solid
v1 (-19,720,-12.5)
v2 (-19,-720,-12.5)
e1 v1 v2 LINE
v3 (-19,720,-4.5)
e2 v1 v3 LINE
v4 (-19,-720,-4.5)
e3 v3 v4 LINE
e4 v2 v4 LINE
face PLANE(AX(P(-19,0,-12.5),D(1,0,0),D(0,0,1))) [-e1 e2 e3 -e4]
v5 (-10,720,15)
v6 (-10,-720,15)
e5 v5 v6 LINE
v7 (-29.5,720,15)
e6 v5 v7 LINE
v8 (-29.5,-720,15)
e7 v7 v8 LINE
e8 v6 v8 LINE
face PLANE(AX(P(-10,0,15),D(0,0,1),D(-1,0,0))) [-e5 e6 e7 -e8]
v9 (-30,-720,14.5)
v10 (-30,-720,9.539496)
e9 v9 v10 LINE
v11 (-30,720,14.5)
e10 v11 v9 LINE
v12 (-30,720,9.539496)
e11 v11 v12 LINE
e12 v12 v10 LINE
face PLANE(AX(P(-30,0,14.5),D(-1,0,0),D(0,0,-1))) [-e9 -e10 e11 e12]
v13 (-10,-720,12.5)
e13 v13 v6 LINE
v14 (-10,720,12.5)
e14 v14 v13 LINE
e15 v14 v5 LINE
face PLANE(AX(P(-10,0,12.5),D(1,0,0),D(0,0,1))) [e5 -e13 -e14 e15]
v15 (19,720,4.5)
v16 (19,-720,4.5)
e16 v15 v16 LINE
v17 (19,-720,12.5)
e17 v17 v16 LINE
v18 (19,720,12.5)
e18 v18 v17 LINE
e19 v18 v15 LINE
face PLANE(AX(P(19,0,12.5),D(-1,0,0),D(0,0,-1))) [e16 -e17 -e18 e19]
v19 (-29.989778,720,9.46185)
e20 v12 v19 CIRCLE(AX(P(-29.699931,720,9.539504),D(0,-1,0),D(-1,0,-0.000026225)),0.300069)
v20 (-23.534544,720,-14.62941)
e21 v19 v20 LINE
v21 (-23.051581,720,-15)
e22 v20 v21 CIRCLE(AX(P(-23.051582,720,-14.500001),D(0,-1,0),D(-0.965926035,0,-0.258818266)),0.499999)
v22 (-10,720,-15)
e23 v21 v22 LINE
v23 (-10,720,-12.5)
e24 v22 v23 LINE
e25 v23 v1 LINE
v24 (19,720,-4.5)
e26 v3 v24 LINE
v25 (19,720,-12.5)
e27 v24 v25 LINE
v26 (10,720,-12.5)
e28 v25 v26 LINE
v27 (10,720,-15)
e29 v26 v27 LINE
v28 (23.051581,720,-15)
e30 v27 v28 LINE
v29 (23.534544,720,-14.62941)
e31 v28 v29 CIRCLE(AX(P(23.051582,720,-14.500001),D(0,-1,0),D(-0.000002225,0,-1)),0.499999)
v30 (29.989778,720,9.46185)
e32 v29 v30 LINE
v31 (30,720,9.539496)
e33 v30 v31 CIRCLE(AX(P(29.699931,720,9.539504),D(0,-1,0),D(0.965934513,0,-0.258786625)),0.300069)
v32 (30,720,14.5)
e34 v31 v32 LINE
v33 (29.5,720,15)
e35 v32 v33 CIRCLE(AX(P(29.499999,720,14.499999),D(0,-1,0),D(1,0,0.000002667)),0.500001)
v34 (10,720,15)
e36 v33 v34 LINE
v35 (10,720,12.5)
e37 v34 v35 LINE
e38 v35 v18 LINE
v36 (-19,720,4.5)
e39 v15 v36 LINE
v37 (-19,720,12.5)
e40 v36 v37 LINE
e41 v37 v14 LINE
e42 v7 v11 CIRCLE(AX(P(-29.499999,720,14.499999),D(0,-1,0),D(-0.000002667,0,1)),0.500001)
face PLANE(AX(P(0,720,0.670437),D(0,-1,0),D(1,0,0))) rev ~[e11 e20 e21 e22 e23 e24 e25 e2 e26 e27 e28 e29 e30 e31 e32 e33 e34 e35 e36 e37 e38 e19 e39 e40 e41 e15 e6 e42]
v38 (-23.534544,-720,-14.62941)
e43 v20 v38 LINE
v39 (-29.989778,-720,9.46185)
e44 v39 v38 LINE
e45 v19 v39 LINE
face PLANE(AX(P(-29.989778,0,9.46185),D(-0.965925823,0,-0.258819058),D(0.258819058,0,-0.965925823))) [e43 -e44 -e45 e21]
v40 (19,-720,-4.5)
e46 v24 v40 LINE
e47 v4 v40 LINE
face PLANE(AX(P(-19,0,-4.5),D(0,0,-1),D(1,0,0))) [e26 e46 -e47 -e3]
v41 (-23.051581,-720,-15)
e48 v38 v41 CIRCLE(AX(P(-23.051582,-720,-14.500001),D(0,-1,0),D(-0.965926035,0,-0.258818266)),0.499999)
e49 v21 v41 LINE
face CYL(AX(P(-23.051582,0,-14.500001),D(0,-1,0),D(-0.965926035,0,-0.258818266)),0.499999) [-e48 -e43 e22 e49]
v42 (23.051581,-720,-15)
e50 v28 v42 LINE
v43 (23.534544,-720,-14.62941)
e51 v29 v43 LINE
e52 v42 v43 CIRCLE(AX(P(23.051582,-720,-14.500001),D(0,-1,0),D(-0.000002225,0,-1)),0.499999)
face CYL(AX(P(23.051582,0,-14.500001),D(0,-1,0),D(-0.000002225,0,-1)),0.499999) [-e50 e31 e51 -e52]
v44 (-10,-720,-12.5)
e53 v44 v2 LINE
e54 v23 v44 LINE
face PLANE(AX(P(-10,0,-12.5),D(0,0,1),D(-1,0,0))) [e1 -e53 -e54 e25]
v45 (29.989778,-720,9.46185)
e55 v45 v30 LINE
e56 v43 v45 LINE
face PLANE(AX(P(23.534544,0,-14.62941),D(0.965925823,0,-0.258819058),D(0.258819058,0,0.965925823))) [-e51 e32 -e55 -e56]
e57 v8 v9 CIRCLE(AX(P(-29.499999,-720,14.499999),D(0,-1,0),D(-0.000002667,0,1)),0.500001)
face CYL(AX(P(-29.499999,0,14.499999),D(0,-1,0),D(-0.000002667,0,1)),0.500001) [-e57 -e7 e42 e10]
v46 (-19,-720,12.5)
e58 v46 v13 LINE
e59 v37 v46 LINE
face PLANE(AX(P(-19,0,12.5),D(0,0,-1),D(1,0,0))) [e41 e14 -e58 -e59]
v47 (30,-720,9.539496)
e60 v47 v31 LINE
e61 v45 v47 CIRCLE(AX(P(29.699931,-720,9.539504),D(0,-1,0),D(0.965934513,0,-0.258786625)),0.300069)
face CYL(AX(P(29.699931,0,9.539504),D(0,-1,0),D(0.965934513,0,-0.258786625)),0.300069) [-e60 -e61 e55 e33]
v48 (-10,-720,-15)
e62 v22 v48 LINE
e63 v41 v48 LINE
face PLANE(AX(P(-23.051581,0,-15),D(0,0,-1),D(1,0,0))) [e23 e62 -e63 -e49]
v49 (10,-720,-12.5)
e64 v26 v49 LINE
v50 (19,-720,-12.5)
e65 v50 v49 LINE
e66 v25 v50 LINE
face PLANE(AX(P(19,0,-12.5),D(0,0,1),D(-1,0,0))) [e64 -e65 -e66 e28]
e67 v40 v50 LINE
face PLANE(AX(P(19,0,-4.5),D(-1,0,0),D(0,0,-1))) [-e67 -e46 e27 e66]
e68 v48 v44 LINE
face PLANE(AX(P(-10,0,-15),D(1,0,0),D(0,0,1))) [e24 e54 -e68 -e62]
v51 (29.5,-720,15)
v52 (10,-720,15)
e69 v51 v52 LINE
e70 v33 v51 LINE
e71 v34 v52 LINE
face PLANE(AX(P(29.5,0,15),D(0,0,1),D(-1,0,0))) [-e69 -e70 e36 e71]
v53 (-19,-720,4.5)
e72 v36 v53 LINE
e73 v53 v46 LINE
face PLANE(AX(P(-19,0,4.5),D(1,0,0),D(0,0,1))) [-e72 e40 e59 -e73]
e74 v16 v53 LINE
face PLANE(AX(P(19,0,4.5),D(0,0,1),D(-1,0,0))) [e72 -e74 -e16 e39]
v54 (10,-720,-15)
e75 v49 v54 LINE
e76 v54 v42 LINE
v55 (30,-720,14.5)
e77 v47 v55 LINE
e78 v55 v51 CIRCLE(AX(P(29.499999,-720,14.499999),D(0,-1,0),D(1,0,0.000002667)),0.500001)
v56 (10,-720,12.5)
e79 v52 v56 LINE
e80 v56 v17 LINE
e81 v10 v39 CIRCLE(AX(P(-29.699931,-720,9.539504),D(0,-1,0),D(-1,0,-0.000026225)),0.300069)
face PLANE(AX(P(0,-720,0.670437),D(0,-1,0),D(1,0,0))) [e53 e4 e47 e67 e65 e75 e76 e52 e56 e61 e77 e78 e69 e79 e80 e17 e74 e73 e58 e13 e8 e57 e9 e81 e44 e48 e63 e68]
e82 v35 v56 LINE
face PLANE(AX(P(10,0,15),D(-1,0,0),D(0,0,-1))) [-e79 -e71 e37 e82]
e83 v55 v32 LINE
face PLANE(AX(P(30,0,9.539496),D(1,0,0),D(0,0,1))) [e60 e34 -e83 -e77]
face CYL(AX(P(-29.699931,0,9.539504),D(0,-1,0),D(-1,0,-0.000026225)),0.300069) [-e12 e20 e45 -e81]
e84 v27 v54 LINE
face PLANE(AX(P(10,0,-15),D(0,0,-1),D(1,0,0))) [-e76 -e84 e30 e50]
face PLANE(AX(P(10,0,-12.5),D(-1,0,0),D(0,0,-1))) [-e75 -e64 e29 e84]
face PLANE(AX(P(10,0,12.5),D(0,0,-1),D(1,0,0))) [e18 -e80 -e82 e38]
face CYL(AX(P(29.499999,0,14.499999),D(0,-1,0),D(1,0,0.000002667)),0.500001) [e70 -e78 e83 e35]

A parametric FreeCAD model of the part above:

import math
import FreeCAD as App
import Part
import Sketcher
Q = App.Units.Quantity

doc = App.newDocument("Part")
body = doc.addObject("PartDesign::Body", "Body")

# Sketch on XZ plane
sketch1 = doc.addObject("Sketcher::SketchObject", "Sketch")
body.addObject(sketch1)
sketch1.AttachmentSupport = (doc.XZ_Plane, [""])
sketch1.MapMode = "FlatFace"
sketch1.addGeometry([
    Part.ArcOfCircle(Part.Circle(App.Vector(29.5, 14.5, 0), App.Vector(0, 0, 1), 0.5), math.radians(0), math.radians(90)),  # 0
    Part.LineSegment(App.Vector(29.5, 15, 0), App.Vector(10, 15, 0)),  # 1
    Part.LineSegment(App.Vector(10, 15, 0), App.Vector(10, 12.5, 0)),  # 2
    Part.LineSegment(App.Vector(10, 12.5, 0), App.Vector(19, 12.5, 0)),  # 3
    Part.LineSegment(App.Vector(19, 12.5, 0), App.Vector(19, 4.5, 0)),  # 4
    Part.LineSegment(App.Vector(19, 4.5, 0), App.Vector(-19, 4.5, 0)),  # 5
    Part.LineSegment(App.Vector(-19, 4.5, 0), App.Vector(-19, 12.5, 0)),  # 6
    Part.LineSegment(App.Vector(-19, 12.5, 0), App.Vector(-10, 12.5, 0)),  # 7
    Part.LineSegment(App.Vector(-10, 12.5, 0), App.Vector(-10, 15, 0)),  # 8
    Part.LineSegment(App.Vector(-10, 15, 0), App.Vector(-29.5, 15, 0)),  # 9
    Part.ArcOfCircle(Part.Circle(App.Vector(-29.5, 14.5, 0), App.Vector(0, 0, 1), 0.5), math.radians(90), math.radians(180)),  # 10
    Part.LineSegment(App.Vector(-30, 14.5, 0), App.Vector(-30, 9.54, 0)),  # 11
    Part.ArcOfCircle(Part.Circle(App.Vector(-29.7, 9.54, 0), App.Vector(0, 0, 1), 0.3), math.radians(-180), math.radians(-165)),  # 12
    Part.LineSegment(App.Vector(-29.99, 9.46, 0), App.Vector(-23.53, -14.63, 0)),  # 13
    Part.ArcOfCircle(Part.Circle(App.Vector(-23.05, -14.5, 0), App.Vector(0, 0, 1), 0.5), math.radians(-165), math.radians(-90)),  # 14
    Part.LineSegment(App.Vector(-23.05, -15, 0), App.Vector(-10, -15, 0)),  # 15
    Part.LineSegment(App.Vector(-10, -15, 0), App.Vector(-10, -12.5, 0)),  # 16
    Part.LineSegment(App.Vector(-10, -12.5, 0), App.Vector(-19, -12.5, 0)),  # 17
    Part.LineSegment(App.Vector(-19, -12.5, 0), App.Vector(-19, -4.5, 0)),  # 18
    Part.LineSegment(App.Vector(-19, -4.5, 0), App.Vector(19, -4.5, 0)),  # 19
    Part.LineSegment(App.Vector(19, -4.5, 0), App.Vector(19, -12.5, 0)),  # 20
    Part.LineSegment(App.Vector(19, -12.5, 0), App.Vector(10, -12.5, 0)),  # 21
    Part.LineSegment(App.Vector(10, -12.5, 0), App.Vector(10, -15, 0)),  # 22
    Part.LineSegment(App.Vector(10, -15, 0), App.Vector(23.05, -15, 0)),  # 23
    Part.ArcOfCircle(Part.Circle(App.Vector(23.05, -14.5, 0), App.Vector(0, 0, 1), 0.5), math.radians(-90), math.radians(-15)),  # 24
    Part.LineSegment(App.Vector(23.53, -14.63, 0), App.Vector(29.99, 9.46, 0)),  # 25
    Part.ArcOfCircle(Part.Circle(App.Vector(29.7, 9.54, 0), App.Vector(0, 0, 1), 0.3), math.radians(-15), math.radians(0)),  # 26
    Part.LineSegment(App.Vector(30, 9.54, 0), App.Vector(30, 14.5, 0)),  # 27
], False)
sketch1.addConstraint([
    Sketcher.Constraint("Coincident", 0, 2, 1, 1),
    Sketcher.Constraint("Coincident", 1, 2, 2, 1),
    Sketcher.Constraint("Coincident", 2, 2, 3, 1),
    Sketcher.Constraint("Coincident", 3, 2, 4, 1),
    Sketcher.Constraint("Coincident", 4, 2, 5, 1),
    Sketcher.Constraint("Coincident", 5, 2, 6, 1),
    Sketcher.Constraint("Coincident", 6, 2, 7, 1),
    Sketcher.Constraint("Coincident", 7, 2, 8, 1),
    Sketcher.Constraint("Coincident", 8, 2, 9, 1),
    Sketcher.Constraint("Coincident", 9, 2, 10, 1),
    Sketcher.Constraint("Coincident", 10, 2, 11, 1),
    Sketcher.Constraint("Coincident", 11, 2, 12, 1),
    Sketcher.Constraint("Coincident", 12, 2, 13, 1),
    Sketcher.Constraint("Tangent", 13, 2, 14, 1),
    Sketcher.Constraint("Coincident", 14, 2, 15, 1),
    Sketcher.Constraint("Coincident", 15, 2, 16, 1),
    Sketcher.Constraint("Coincident", 16, 2, 17, 1),
    Sketcher.Constraint("Coincident", 17, 2, 18, 1),
    Sketcher.Constraint("Coincident", 18, 2, 19, 1),
    Sketcher.Constraint("Coincident", 19, 2, 20, 1),
    Sketcher.Constraint("Coincident", 20, 2, 21, 1),
    Sketcher.Constraint("Coincident", 21, 2, 22, 1),
    Sketcher.Constraint("Coincident", 22, 2, 23, 1),
    Sketcher.Constraint("Coincident", 23, 2, 24, 1),
    Sketcher.Constraint("Tangent", 24, 2, 25, 1),
    Sketcher.Constraint("Coincident", 25, 2, 26, 1),
    Sketcher.Constraint("Coincident", 26, 2, 27, 1),
    Sketcher.Constraint("Coincident", 27, 2, 0, 1),
    Sketcher.Constraint("Horizontal", 1),
    Sketcher.Constraint("Vertical", 2),
    Sketcher.Constraint("Horizontal", 3),
    Sketcher.Constraint("Vertical", 4),
    Sketcher.Constraint("Horizontal", 5),
    Sketcher.Constraint("Vertical", 6),
    Sketcher.Constraint("Horizontal", 7),
    Sketcher.Constraint("Vertical", 8),
    Sketcher.Constraint("Horizontal", 9),
    Sketcher.Constraint("Vertical", 11),
    Sketcher.Constraint("Horizontal", 15),
    Sketcher.Constraint("Vertical", 16),
    Sketcher.Constraint("Horizontal", 17),
    Sketcher.Constraint("Vertical", 18),
    Sketcher.Constraint("Horizontal", 19),
    Sketcher.Constraint("Vertical", 20),
    Sketcher.Constraint("Horizontal", 21),
    Sketcher.Constraint("Vertical", 22),
    Sketcher.Constraint("Horizontal", 23),
    Sketcher.Constraint("Vertical", 27),
    Sketcher.Constraint("Equal", 0, 10),
    Sketcher.Constraint("Equal", 14, 24),
    Sketcher.Constraint("Equal", 12, 26),
    Sketcher.Constraint("Symmetric", 1, 2, 15, 2, -1, 1),
    Sketcher.Constraint("Symmetric", 3, 2, 17, 2, -1, 1),
    Sketcher.Constraint("Symmetric", 5, 2, 19, 2, -1, 1),
    Sketcher.Constraint("Symmetric", 7, 2, 21, 2, -1, 1),
    Sketcher.Constraint("Symmetric", 0, 3, 10, 3, -2),
    Sketcher.Constraint("Symmetric", 14, 3, 24, 3, -2),
    Sketcher.Constraint("Symmetric", 3, 2, 6, 2, -2),
    Sketcher.Constraint("Symmetric", 12, 2, 25, 2, -2),
    Sketcher.Constraint("Horizontal", 0, 3, 10, 2),
    Sketcher.Constraint("Horizontal", 11, 2, 26, 2),
    Sketcher.Constraint("Horizontal", 10, 2, 27, 2),
    Sketcher.Constraint("Vertical", 10, 3, 9, 2),
    Sketcher.Constraint("Vertical", 8, 2, 15, 2),
    Sketcher.Constraint("Vertical", 24, 3, 23, 2),
    Sketcher.Constraint("Equal", 1, 9),
    Sketcher.Constraint("Equal", 15, 23),
    Sketcher.Constraint("Radius", 0, 0.500001),
    Sketcher.Constraint("Radius", 14, 0.499999),
    Sketcher.Constraint("DistanceX", 3, 1, 3, 2, 9.0),
    Sketcher.Constraint("DistanceX", 5, 2, 5, 1, 38.0),
    Sketcher.Constraint("DistanceY", 4, 2, 4, 1, 8.0),
    Sketcher.Constraint("Angle", 13, Q("-74.999999 deg")),
    Sketcher.Constraint("DistanceX", 1, 2, 1, 1, 19.5),
    Sketcher.Constraint("DistanceY", 2, 2, 2, 1, 2.5),
    Sketcher.Constraint("DistanceY", -1, 1, 0, 2, 15.0),
    Sketcher.Constraint("Radius", 12, 0.300069),
    Sketcher.Constraint("DistanceX", 15, 1, 15, 2, 13.051581),
    Sketcher.Constraint("DistanceY", 11, 2, 11, 1, 4.960504),
    Sketcher.Constraint("DistanceX", 12, 2, -1, 1, 29.989778),
])
pad1 = doc.addObject("PartDesign::Pad", "Pad")
body.addObject(pad1)
pad1.Profile = sketch1
pad1.Length = 1440
pad1.Midplane = True

doc.recompute()
